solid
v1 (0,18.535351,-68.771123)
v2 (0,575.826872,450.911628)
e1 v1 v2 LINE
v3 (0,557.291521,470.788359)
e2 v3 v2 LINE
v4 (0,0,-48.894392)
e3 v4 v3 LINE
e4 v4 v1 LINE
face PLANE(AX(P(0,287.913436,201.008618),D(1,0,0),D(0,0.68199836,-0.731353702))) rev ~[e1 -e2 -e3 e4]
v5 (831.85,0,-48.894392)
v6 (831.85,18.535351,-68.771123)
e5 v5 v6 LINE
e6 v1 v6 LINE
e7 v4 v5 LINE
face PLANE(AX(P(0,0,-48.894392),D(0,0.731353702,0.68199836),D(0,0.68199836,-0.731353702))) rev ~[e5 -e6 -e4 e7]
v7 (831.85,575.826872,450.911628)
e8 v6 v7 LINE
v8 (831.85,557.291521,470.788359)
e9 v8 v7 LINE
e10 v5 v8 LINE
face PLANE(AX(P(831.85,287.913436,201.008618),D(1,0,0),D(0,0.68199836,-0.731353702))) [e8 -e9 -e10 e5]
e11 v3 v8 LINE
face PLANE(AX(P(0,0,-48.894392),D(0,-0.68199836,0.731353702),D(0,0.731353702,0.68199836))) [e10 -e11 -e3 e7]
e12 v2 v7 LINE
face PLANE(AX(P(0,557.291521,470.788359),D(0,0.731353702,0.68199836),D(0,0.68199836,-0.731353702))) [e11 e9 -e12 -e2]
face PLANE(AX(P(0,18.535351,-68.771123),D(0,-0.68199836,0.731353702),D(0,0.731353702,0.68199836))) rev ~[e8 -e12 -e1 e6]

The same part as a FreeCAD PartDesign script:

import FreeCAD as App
import Part
import Sketcher
Q = App.Units.Quantity

doc = App.newDocument("Part")
params = doc.addObject("Spreadsheet::Sheet", "Params")
for row, (alias, value) in enumerate([
    ("sketch1_height", "30 in"),
    ("sketch1_width", "1.07 in"),
    ("pad1_length", "32.75 in"),
], start=1):
    params.set(f"A{row}", alias)
    params.set(f"B{row}", "=" + value)
    params.setAlias(f"B{row}", alias)

body = doc.addObject("PartDesign::Body", "Body")

sketch1 = doc.addObject("Sketcher::SketchObject", "Sketch")
body.addObject(sketch1)
sketch1.AttachmentSupport = (doc.YZ_Plane, [""])
sketch1.MapMode = "FlatFace"
sketch1.addGeometry(Part.LineSegment(App.Vector(0, 713, 0), App.Vector(0, -49, 0)), False)
sketch1.addGeometry(Part.LineSegment(App.Vector(0, -49, 0), App.Vector(27, -49, 0)), False)
sketch1.addGeometry(Part.LineSegment(App.Vector(27, -49, 0), App.Vector(27, 713, 0)), False)
sketch1.addGeometry(Part.LineSegment(App.Vector(27, 713, 0), App.Vector(0, 713, 0)), False)
sketch1.addConstraint(Sketcher.Constraint("Coincident", 0, 2, 1, 1))
sketch1.addConstraint(Sketcher.Constraint("Coincident", 1, 2, 2, 1))
sketch1.addConstraint(Sketcher.Constraint("Coincident", 2, 2, 3, 1))
sketch1.addConstraint(Sketcher.Constraint("Coincident", 3, 2, 0, 1))
sketch1.addConstraint(Sketcher.Constraint("Vertical", 0))
sketch1.addConstraint(Sketcher.Constraint("Horizontal", 1))
sketch1.addConstraint(Sketcher.Constraint("Vertical", 2))
sketch1.addConstraint(Sketcher.Constraint("Horizontal", 3))
sketch1.addConstraint(Sketcher.Constraint("PointOnObject", 0, 2, -2))
sketch1.addConstraint(Sketcher.Constraint("DistanceY", 0, 2, 0, 1, Q("30 in")))
sketch1.addConstraint(Sketcher.Constraint("DistanceX", 1, 1, 1, 2, Q("1.07 in")))
sketch1.addConstraint(Sketcher.Constraint("DistanceY", 0, 2, -1, 1, Q("48.894392 mm")))
sketch1.setExpression("Constraints[9]", "Params.sketch1_height")
sketch1.setExpression("Constraints[10]", "Params.sketch1_width")
pad1 = doc.addObject("PartDesign::Pad", "Pad")
body.addObject(pad1)
pad1.Profile = sketch1
pad1.setExpression("Length", "Params.pad1_length")
body2 = doc.addObject("PartDesign::Body", "Body001")
doc.recompute()

body.Placement = App.Placement(App.Vector(0, 35.759094, -15.548497), App.Rotation(App.Vector(-1, 0, 0), 47))
boolean = doc.addObject("PartDesign::Boolean", "Boolean")
body2.addObject(boolean)
boolean.Type = "Fuse"
boolean.addObjects([body])

doc.recompute()
